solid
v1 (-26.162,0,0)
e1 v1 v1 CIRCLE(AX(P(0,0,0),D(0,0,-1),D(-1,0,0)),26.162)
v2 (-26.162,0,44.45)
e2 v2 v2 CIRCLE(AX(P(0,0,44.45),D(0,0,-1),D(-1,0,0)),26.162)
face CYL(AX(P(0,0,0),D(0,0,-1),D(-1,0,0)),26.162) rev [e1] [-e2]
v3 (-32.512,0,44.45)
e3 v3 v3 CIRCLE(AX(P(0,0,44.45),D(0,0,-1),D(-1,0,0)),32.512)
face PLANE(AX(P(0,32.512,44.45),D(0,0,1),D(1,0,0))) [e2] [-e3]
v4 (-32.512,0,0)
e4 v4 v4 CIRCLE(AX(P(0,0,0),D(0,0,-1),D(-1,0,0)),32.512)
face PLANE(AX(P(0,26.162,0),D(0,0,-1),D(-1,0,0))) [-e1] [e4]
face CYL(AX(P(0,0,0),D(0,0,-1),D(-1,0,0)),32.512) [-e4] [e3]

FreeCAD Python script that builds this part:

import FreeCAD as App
import Part
import Sketcher
Q = App.Units.Quantity


def add_polygon(sketch, points):
    """Adds a closed chain of lines whose ends are joined by coincident constraints."""
    first, n = sketch.GeometryCount, len(points)
    for a, b in zip(points, points[1:] + points[:1]):
        sketch.addGeometry(Part.LineSegment(App.Vector(*a, 0), App.Vector(*b, 0)), False)
    for i in range(n):
        sketch.addConstraint(Sketcher.Constraint("Coincident", first + i, 2, first + (i + 1) % n, 1))

doc = App.newDocument("Part")
body = doc.addObject("PartDesign::Body", "Body")

sketch1 = doc.addObject("Sketcher::SketchObject", "Sketch")
body.addObject(sketch1)
sketch1.AttachmentSupport = (doc.YZ_Plane, [""])
sketch1.MapMode = "FlatFace"
add_polygon(sketch1, [(32.512, 44.45), (26.162, 44.45), (26.162, 0), (32.512, 0)])
sketch1.addConstraint([
    Sketcher.Constraint("Horizontal", 0),
    Sketcher.Constraint("Vertical", 1),
    Sketcher.Constraint("Horizontal", 2),
    Sketcher.Constraint("Vertical", 3),
    Sketcher.Constraint("PointOnObject", 1, 2, -1),
    Sketcher.Constraint("DistanceX", 0, 2, 0, 1, Q("0.25 in")),
    Sketcher.Constraint("DistanceY", 1, 2, 1, 1, Q("1.75 in")),
    Sketcher.Constraint("DistanceX", -1, 1, 0, 2, Q("1.03 in")),
])
revolution = doc.addObject("PartDesign::Revolution", "Revolution")
body.addObject(revolution)
revolution.Profile = sketch1
revolution.ReferenceAxis = (sketch1, ["V_Axis"])
revolution.Angle = 360

doc.recompute()
